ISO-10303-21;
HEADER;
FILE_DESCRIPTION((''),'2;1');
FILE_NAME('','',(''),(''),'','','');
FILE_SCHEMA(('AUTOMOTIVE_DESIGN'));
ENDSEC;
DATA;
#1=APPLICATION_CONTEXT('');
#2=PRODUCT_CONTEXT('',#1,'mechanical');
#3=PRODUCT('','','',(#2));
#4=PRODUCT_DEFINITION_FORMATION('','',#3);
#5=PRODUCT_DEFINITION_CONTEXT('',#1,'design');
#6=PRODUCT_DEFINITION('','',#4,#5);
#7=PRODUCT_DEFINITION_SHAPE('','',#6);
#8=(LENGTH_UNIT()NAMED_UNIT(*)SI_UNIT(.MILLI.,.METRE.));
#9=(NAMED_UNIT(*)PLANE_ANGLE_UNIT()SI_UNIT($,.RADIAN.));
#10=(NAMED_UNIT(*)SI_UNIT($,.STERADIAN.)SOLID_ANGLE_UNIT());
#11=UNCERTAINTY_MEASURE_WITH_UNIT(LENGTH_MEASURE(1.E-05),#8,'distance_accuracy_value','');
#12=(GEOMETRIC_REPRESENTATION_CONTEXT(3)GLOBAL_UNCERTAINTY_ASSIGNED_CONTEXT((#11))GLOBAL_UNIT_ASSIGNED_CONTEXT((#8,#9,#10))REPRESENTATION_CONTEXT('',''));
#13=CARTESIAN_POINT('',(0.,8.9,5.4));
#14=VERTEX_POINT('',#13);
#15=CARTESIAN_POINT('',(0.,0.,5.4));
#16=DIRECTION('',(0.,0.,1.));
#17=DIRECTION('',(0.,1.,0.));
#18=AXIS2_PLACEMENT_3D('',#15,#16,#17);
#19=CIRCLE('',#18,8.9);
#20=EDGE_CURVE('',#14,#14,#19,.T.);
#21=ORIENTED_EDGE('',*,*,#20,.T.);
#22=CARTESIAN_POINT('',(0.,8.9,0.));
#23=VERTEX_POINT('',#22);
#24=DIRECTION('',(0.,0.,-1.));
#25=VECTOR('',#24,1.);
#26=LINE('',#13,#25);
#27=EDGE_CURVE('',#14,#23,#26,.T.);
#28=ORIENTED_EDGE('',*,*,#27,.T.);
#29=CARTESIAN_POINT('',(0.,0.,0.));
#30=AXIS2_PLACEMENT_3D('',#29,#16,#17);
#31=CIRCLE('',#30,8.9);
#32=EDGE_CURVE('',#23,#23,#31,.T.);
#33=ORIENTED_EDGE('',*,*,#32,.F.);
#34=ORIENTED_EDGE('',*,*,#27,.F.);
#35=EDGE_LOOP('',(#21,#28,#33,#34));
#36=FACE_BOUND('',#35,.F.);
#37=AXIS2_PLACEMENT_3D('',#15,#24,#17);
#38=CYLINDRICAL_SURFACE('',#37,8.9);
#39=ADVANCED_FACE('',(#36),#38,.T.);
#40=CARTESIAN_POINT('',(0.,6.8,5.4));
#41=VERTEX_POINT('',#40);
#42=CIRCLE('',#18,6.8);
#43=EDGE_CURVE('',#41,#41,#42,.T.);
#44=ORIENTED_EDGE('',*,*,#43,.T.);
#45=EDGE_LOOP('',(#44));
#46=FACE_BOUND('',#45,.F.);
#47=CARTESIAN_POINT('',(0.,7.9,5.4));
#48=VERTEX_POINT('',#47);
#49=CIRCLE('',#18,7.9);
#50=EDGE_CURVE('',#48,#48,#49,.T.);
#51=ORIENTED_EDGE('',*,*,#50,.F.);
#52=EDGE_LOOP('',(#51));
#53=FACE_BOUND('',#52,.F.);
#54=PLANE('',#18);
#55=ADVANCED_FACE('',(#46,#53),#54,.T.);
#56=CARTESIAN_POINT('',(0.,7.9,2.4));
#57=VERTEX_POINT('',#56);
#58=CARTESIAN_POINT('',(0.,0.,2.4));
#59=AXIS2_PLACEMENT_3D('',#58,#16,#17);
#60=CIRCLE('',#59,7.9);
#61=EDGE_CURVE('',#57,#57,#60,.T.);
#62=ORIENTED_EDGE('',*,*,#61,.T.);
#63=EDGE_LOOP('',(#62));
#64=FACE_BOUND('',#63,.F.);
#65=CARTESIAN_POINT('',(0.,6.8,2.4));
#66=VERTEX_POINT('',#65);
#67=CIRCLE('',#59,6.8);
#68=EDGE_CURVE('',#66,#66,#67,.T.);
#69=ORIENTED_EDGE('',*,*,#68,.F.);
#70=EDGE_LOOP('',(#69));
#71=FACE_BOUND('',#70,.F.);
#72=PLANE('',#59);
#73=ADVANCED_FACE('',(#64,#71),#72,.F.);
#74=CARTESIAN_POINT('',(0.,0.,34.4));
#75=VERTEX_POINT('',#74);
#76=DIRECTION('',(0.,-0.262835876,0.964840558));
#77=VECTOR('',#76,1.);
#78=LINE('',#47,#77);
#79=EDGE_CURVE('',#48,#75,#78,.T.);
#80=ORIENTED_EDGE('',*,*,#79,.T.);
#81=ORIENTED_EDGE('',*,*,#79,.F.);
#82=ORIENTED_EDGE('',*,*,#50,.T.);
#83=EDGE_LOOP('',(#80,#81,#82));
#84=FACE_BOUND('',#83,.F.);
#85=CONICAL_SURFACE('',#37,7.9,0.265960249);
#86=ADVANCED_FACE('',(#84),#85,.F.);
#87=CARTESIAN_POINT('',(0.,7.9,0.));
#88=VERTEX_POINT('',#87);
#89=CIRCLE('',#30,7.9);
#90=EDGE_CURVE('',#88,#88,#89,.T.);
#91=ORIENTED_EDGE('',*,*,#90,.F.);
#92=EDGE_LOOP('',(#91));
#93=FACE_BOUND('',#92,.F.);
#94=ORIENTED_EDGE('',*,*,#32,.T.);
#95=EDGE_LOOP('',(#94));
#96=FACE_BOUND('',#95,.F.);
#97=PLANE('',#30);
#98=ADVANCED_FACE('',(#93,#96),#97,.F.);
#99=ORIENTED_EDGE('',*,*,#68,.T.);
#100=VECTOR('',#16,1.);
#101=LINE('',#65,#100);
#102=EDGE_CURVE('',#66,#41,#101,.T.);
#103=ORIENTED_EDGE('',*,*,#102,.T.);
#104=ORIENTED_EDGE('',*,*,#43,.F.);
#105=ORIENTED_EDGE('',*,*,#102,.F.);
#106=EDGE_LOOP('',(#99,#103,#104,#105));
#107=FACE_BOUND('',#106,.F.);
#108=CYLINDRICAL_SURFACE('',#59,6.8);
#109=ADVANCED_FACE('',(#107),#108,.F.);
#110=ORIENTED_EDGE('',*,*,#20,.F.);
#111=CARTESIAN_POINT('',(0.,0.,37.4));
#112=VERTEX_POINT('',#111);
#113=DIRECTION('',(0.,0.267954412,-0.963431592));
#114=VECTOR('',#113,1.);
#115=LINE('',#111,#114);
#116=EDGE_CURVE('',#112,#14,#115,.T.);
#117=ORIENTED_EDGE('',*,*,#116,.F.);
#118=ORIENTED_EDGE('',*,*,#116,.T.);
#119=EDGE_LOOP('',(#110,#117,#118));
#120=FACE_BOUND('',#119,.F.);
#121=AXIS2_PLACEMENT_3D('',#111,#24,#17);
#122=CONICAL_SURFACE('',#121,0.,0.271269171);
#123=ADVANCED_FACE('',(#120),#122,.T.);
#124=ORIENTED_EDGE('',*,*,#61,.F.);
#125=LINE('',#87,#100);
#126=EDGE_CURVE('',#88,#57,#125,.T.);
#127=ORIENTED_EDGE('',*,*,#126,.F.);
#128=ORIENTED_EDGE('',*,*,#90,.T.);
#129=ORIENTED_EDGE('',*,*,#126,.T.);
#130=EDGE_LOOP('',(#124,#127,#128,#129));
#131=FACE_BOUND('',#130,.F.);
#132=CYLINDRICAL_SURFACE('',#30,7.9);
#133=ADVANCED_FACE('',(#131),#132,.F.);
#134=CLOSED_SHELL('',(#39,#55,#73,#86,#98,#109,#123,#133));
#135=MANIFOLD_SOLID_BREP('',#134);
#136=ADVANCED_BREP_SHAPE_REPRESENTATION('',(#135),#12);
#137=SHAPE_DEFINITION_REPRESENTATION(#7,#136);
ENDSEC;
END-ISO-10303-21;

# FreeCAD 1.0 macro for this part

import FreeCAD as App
import Part
import Sketcher
from FreeCAD import Vector
Q = App.Units.Quantity

doc = App.newDocument("Part")
params = doc.addObject("Spreadsheet::Sheet", "Params")
for row, (alias, value) in enumerate([
    ("sketch1_width", "3 mm"),
    ("sketch1_height", "1 mm"),
    ("sketch1_width2", "2.4 mm"),
    ("sketch1_height2", "1.1 mm"),
    ("revolution_angle", "360 deg"),
], start=1):
    params.set(f"A{row}", alias)
    params.set(f"B{row}", "=" + value)
    params.setAlias(f"B{row}", alias)

body = doc.addObject("PartDesign::Body", "Body")

# Sketch on XY plane
sketch1 = body.newObject("Sketcher::SketchObject", "Sketch")
sketch1.AttachmentSupport = (doc.getObject("XY_Plane"), [""])
sketch1.MapMode = "FlatFace"
sketch1.addGeometry(Part.LineSegment(Vector(0, 8.9, 0), Vector(0, 7.9, 0)), False)
sketch1.addGeometry(Part.LineSegment(Vector(0, 7.9, 0), Vector(2.4, 7.9, 0)), False)
sketch1.addGeometry(Part.LineSegment(Vector(2.4, 7.9, 0), Vector(2.4, 6.8, 0)), False)
sketch1.addGeometry(Part.LineSegment(Vector(2.4, 6.8, 0), Vector(5.4, 6.8, 0)), False)
sketch1.addGeometry(Part.LineSegment(Vector(5.4, 6.8, 0), Vector(5.4, 7.9, 0)), False)
sketch1.addGeometry(Part.LineSegment(Vector(5.4, 7.9, 0), Vector(34.4, 0, 0)), False)
sketch1.addGeometry(Part.LineSegment(Vector(34.4, 0, 0), Vector(37.4, 0, 0)), False)
sketch1.addGeometry(Part.LineSegment(Vector(37.4, 0, 0), Vector(5.4, 8.9, 0)), False)
sketch1.addGeometry(Part.LineSegment(Vector(5.4, 8.9, 0), Vector(0, 8.9, 0)), False)
sketch1.addConstraint(Sketcher.Constraint("Coincident", 0, 2, 1, 1))
sketch1.addConstraint(Sketcher.Constraint("Coincident", 1, 2, 2, 1))
sketch1.addConstraint(Sketcher.Constraint("Coincident", 2, 2, 3, 1))
sketch1.addConstraint(Sketcher.Constraint("Coincident", 3, 2, 4, 1))
sketch1.addConstraint(Sketcher.Constraint("Coincident", 4, 2, 5, 1))
sketch1.addConstraint(Sketcher.Constraint("Coincident", 5, 2, 6, 1))
sketch1.addConstraint(Sketcher.Constraint("Coincident", 6, 2, 7, 1))
sketch1.addConstraint(Sketcher.Constraint("Coincident", 7, 2, 8, 1))
sketch1.addConstraint(Sketcher.Constraint("Coincident", 8, 2, 0, 1))
sketch1.addConstraint(Sketcher.Constraint("Vertical", 0))
sketch1.addConstraint(Sketcher.Constraint("Horizontal", 1))
sketch1.addConstraint(Sketcher.Constraint("Vertical", 2))
sketch1.addConstraint(Sketcher.Constraint("Horizontal", 3))
sketch1.addConstraint(Sketcher.Constraint("Vertical", 4))
sketch1.addConstraint(Sketcher.Constraint("Horizontal", 6))
sketch1.addConstraint(Sketcher.Constraint("Horizontal", 8))
sketch1.addConstraint(Sketcher.Constraint("PointOnObject", 0, 2, -2))
sketch1.addConstraint(Sketcher.Constraint("PointOnObject", 5, 2, -1))
sketch1.addConstraint(Sketcher.Constraint("Horizontal", 1, 2, 4, 2))
sketch1.addConstraint(Sketcher.Constraint("Vertical", 4, 2, 7, 2))
sketch1.addConstraint(Sketcher.Constraint("Equal", 3, 6))
sketch1.addConstraint(Sketcher.Constraint("DistanceX", 3, 1, 3, 2, Q("3 mm")))
sketch1.addConstraint(Sketcher.Constraint("DistanceY", 0, 2, 0, 1, Q("1 mm")))
sketch1.addConstraint(Sketcher.Constraint("DistanceX", 1, 1, 1, 2, Q("2.4 mm")))
sketch1.addConstraint(Sketcher.Constraint("DistanceY", 2, 2, 2, 1, Q("1.1 mm")))
sketch1.addConstraint(Sketcher.Constraint("DistanceX", 3, 2, 5, 2, Q("29 mm")))
sketch1.addConstraint(Sketcher.Constraint("DistanceY", -1, 1, 0, 2, Q("7.9 mm")))
sketch1.setExpression("Constraints[21]", "Params.sketch1_width")
sketch1.setExpression("Constraints[22]", "Params.sketch1_height")
sketch1.setExpression("Constraints[23]", "Params.sketch1_width2")
sketch1.setExpression("Constraints[24]", "Params.sketch1_height2")
revolution = body.newObject("PartDesign::Revolution", "Revolution")
revolution.Profile = sketch1
revolution.ReferenceAxis = (sketch1, ["H_Axis"])
revolution.setExpression("Angle", "Params.revolution_angle")
body2 = doc.addObject("PartDesign::Body", "Body001")
doc.recompute()

body.Placement = App.Placement(Vector(0, 0, 0), App.Rotation(Vector(0, -1, 0), 90))
boolean = body2.newObject("PartDesign::Boolean", "Boolean")
boolean.Type = "Fuse"
boolean.addObjects([body])

doc.recompute()
